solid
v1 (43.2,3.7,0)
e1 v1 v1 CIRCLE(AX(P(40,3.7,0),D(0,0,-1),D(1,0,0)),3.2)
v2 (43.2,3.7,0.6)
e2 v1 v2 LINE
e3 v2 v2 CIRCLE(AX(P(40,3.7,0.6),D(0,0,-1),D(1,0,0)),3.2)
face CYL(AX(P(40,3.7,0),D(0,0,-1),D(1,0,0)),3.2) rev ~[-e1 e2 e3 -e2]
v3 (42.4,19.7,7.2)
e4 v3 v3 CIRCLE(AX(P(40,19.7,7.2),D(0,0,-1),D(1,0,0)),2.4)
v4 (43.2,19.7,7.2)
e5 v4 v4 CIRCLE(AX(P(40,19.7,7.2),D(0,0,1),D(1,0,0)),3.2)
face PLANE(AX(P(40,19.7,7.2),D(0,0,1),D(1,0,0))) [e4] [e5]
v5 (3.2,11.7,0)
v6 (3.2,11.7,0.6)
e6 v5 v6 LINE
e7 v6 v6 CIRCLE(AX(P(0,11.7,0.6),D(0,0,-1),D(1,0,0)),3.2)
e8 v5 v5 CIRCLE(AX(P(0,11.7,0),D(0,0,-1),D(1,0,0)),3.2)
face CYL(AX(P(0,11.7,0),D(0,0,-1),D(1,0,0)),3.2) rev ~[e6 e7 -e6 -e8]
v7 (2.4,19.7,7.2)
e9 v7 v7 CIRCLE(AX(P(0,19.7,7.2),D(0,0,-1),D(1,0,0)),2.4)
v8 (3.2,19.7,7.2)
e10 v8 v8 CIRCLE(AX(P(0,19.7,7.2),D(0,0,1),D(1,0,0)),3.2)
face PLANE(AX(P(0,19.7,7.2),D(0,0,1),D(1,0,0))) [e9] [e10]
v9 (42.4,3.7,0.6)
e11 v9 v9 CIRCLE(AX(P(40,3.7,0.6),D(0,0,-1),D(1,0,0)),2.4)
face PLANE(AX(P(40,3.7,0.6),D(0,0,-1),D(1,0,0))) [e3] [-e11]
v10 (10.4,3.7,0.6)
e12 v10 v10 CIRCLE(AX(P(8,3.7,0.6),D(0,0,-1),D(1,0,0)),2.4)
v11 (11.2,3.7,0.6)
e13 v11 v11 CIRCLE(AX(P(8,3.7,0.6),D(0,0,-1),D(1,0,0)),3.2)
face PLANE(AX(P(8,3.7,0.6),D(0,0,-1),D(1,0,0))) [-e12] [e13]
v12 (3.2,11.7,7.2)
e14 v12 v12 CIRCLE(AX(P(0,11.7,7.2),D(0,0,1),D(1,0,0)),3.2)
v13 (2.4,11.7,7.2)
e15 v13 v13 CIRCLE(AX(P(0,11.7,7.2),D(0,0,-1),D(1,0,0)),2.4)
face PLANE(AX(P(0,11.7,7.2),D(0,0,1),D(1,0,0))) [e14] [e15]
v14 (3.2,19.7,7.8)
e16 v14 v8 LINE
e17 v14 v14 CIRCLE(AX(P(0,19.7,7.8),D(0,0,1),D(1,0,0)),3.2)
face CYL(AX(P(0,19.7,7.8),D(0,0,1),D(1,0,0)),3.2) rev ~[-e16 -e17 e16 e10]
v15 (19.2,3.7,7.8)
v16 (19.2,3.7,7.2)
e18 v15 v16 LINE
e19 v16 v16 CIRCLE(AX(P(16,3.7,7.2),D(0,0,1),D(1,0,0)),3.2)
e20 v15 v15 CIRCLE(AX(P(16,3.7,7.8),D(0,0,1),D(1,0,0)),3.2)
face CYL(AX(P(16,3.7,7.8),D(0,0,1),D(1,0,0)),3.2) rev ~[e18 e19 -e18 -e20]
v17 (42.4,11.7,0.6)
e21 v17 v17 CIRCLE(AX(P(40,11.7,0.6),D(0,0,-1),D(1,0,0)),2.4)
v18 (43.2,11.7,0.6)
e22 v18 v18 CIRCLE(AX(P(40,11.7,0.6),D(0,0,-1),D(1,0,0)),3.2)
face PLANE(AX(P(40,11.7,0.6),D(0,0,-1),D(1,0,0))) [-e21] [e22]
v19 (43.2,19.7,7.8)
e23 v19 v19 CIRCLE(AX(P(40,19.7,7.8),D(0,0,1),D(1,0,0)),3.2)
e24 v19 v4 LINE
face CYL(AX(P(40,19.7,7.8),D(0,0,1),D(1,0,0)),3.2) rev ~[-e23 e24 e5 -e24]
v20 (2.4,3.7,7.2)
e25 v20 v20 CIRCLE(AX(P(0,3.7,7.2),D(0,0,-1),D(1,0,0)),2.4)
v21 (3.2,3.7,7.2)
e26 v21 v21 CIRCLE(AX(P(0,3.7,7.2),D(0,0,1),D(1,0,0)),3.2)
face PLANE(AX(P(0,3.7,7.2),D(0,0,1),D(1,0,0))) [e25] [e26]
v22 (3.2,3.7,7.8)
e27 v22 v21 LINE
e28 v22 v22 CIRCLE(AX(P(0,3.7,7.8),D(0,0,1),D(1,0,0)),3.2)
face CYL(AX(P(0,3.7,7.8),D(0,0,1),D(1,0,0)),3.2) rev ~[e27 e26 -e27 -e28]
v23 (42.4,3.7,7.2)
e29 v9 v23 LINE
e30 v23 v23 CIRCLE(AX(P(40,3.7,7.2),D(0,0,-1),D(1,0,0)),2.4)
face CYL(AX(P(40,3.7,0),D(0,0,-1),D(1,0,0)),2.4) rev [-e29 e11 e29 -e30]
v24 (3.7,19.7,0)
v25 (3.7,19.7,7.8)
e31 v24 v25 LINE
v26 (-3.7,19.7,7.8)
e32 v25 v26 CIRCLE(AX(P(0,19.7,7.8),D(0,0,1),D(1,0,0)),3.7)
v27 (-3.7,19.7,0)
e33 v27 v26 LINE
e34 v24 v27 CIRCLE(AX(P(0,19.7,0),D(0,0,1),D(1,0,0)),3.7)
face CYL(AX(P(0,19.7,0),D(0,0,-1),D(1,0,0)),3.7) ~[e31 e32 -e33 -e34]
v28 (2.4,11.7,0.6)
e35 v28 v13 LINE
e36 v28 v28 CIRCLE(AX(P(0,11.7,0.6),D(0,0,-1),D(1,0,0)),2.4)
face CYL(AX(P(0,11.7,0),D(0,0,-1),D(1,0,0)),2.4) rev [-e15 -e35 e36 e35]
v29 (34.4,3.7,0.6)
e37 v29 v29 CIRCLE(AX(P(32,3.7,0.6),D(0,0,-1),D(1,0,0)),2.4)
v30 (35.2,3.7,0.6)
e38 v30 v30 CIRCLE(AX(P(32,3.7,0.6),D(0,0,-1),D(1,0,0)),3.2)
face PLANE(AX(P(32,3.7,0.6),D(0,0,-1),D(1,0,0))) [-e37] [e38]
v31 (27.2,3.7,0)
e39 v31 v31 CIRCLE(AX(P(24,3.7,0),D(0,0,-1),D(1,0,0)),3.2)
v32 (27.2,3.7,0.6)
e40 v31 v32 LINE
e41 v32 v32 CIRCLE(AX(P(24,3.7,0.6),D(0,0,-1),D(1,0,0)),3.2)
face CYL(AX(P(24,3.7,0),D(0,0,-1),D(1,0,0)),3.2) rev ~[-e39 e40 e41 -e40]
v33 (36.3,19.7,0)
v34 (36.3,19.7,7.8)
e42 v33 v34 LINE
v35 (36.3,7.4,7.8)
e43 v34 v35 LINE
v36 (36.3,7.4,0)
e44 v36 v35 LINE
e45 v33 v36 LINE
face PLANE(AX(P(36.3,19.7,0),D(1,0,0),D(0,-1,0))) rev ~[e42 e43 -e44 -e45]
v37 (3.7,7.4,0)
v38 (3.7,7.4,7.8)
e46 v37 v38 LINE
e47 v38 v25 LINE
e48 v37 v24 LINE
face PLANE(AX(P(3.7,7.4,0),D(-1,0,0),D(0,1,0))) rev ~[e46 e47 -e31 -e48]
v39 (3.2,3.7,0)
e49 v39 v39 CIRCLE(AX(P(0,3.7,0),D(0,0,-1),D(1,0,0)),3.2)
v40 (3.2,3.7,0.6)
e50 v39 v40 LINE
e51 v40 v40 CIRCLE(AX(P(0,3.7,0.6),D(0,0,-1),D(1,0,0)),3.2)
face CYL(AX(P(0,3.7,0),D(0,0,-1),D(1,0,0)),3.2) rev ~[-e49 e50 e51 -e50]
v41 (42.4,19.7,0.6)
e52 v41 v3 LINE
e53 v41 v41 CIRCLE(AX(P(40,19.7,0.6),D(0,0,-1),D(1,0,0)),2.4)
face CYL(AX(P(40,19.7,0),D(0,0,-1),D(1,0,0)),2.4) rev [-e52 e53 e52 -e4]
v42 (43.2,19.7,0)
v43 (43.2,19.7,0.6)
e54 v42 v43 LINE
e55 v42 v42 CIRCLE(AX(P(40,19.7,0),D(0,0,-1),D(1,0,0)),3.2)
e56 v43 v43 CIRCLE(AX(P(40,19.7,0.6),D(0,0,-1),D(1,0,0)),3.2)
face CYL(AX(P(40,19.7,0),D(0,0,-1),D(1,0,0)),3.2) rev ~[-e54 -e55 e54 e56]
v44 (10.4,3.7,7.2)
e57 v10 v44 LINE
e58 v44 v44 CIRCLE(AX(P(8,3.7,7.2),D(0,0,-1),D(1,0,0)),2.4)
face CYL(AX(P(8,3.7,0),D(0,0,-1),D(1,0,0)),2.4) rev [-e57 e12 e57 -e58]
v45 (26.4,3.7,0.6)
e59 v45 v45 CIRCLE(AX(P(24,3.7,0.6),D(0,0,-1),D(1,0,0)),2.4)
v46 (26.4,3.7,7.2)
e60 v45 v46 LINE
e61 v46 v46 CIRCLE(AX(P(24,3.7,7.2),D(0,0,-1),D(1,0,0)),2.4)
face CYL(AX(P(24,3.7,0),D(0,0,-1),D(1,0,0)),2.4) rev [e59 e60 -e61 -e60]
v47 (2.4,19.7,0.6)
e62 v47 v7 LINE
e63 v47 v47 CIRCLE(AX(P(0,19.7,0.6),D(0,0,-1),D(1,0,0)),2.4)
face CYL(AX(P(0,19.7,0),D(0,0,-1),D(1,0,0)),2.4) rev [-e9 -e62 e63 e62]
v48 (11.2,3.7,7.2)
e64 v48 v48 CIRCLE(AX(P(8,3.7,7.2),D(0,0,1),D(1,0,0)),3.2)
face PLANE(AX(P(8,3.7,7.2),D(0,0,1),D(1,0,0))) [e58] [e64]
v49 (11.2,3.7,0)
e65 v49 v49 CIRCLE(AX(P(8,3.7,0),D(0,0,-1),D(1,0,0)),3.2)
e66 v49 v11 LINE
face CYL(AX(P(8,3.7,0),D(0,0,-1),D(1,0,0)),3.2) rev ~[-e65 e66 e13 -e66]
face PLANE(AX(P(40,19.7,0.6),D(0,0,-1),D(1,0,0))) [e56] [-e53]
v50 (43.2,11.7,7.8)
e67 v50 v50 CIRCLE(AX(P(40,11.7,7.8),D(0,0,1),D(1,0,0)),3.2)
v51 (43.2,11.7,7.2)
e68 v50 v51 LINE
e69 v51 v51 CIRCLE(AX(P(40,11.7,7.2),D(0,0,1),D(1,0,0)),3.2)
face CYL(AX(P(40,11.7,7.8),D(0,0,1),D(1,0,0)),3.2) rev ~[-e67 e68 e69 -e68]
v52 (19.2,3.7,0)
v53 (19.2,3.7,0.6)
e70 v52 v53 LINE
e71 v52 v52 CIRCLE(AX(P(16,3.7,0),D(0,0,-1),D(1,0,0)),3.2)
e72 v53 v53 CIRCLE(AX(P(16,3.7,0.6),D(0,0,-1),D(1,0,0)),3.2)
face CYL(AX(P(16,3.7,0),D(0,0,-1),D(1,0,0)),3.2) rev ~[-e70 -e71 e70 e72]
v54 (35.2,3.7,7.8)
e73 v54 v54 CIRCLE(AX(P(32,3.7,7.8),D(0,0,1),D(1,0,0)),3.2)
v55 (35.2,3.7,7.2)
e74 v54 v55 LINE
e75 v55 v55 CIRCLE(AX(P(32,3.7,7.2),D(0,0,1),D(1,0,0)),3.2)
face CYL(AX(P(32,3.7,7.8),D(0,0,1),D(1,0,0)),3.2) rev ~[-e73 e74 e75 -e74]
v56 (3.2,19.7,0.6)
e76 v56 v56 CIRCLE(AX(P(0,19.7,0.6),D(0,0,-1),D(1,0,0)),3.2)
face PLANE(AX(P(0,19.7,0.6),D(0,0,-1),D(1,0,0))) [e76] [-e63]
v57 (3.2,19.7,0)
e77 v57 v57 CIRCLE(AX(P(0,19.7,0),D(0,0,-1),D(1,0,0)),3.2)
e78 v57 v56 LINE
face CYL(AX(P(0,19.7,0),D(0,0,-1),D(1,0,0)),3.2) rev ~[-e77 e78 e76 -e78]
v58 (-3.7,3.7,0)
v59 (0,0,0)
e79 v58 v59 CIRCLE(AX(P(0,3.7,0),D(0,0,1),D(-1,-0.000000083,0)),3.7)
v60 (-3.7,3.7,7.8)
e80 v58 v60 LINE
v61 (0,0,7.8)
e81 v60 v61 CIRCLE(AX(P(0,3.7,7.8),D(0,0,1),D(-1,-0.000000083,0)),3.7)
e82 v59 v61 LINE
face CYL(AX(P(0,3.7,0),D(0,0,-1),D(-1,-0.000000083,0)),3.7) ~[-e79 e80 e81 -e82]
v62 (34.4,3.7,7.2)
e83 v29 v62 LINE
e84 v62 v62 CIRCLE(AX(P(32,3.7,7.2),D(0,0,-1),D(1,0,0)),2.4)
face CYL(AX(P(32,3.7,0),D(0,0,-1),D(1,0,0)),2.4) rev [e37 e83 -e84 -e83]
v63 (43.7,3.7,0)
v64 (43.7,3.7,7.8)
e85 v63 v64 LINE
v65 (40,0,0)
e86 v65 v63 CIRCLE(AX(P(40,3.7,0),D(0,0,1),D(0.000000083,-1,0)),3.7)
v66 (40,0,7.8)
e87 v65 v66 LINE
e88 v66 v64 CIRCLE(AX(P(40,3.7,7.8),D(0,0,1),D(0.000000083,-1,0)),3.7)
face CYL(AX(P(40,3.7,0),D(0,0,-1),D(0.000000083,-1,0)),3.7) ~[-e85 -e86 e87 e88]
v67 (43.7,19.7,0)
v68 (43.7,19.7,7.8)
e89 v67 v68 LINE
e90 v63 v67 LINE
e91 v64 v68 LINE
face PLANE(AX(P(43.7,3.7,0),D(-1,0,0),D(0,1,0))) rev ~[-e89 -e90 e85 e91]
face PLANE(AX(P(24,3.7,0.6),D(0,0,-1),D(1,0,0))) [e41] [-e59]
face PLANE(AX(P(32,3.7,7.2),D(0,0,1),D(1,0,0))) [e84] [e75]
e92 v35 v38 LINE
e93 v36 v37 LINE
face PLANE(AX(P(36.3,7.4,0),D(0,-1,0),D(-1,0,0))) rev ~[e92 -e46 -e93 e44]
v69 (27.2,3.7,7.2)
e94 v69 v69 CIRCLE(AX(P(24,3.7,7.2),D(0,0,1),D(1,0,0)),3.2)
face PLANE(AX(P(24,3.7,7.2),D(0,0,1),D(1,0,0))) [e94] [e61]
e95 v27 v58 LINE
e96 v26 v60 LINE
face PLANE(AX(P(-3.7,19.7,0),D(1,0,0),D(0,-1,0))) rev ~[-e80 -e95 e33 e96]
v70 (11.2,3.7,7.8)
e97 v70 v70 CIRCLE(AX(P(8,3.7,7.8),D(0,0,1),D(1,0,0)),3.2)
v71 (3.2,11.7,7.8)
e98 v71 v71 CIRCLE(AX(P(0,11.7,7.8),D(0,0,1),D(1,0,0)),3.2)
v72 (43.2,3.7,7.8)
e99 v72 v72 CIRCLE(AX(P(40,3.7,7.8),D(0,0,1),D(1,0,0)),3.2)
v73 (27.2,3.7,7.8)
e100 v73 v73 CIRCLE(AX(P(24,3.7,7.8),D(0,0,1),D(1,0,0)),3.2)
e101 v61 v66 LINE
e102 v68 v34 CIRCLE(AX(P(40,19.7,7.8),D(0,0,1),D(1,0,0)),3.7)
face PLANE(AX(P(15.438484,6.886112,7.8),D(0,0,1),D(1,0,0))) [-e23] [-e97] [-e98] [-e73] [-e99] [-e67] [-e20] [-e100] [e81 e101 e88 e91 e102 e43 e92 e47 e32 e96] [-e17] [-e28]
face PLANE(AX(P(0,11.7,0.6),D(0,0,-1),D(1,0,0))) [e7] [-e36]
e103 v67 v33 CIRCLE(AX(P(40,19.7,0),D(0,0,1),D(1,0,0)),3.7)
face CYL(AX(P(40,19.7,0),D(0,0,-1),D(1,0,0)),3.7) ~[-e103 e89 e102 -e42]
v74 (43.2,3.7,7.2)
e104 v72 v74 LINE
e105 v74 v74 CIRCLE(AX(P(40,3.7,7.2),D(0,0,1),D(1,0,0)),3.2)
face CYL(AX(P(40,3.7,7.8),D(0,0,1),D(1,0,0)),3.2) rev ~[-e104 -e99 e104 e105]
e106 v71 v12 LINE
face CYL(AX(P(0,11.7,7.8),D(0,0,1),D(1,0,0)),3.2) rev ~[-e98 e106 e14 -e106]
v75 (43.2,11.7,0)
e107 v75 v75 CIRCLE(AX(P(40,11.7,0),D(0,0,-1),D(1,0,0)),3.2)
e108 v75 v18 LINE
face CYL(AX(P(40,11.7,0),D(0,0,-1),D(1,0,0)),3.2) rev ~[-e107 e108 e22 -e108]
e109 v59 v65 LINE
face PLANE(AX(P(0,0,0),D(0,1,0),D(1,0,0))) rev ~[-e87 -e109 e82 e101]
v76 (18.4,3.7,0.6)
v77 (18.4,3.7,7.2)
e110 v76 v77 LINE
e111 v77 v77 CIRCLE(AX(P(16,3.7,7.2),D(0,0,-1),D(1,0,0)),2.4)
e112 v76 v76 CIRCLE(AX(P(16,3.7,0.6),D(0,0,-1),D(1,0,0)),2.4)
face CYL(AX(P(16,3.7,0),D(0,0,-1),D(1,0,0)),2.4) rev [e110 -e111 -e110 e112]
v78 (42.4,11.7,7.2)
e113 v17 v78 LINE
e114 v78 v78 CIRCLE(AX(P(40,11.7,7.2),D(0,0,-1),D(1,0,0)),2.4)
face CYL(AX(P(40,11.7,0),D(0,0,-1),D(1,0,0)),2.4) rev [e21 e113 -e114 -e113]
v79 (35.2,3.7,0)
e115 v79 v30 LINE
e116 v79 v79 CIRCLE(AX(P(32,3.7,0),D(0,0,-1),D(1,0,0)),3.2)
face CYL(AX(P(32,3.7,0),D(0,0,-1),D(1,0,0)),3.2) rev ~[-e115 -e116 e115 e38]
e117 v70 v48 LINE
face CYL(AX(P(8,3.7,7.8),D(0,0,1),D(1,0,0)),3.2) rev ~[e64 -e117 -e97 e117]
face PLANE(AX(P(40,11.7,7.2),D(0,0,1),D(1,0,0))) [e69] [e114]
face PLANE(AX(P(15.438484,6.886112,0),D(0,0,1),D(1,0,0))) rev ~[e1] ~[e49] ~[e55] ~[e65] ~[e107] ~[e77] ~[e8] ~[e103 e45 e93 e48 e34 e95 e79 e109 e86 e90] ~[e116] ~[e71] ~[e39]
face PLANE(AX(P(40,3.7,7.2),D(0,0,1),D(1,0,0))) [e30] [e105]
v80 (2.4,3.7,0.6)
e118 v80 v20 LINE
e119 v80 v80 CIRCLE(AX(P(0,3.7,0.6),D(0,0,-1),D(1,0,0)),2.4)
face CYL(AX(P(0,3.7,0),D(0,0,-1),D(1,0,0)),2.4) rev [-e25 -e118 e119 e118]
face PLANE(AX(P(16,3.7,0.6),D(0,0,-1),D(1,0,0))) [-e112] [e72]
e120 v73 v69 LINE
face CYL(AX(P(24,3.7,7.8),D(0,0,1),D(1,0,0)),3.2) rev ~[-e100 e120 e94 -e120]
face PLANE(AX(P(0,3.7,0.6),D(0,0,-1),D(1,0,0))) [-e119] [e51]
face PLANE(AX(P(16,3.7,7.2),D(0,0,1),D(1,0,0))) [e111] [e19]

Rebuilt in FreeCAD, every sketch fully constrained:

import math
import FreeCAD as App
import Part
import Sketcher
from FreeCAD import Vector

doc = App.newDocument("Part")
body = doc.addObject("PartDesign::Body", "Body")

sketch1 = doc.addObject("Sketcher::SketchObject", "Sketch")
body.addObject(sketch1)
sketch1.AttachmentSupport = (doc.XY_Plane, [""])
sketch1.MapMode = "FlatFace"
sketch1.addGeometry([
    Part.ArcOfCircle(Part.Circle(Vector(0, 3.7, 0), Vector(0, 0, 1), 3.7), math.radians(-179.999995), math.radians(-90.000005)),
    Part.LineSegment(Vector(0, 0, 0), Vector(40, 0, 0)),
    Part.ArcOfCircle(Part.Circle(Vector(40, 3.7, 0), Vector(0, 0, 1), 3.7), math.radians(-89.999995), math.radians(-0.000005)),
    Part.LineSegment(Vector(43.7, 3.7, 0), Vector(43.7, 19.7, 0)),
    Part.ArcOfCircle(Part.Circle(Vector(40, 19.7, 0), Vector(0, 0, 1), 3.7), math.radians(0), math.radians(180)),
    Part.LineSegment(Vector(36.3, 19.7, 0), Vector(36.3, 7.4, 0)),
    Part.LineSegment(Vector(36.3, 7.4, 0), Vector(3.7, 7.4, 0)),
    Part.LineSegment(Vector(3.7, 7.4, 0), Vector(3.7, 19.7, 0)),
    Part.ArcOfCircle(Part.Circle(Vector(0, 19.7, 0), Vector(0, 0, 1), 3.7), math.radians(0), math.radians(180)),
    Part.LineSegment(Vector(-3.7, 19.7, 0), Vector(-3.7, 3.7, 0)),
    Part.Circle(Vector(0, 3.7, 0), Vector(0, 0, 1), 2.4),
    Part.Circle(Vector(8, 3.7, 0), Vector(0, 0, 1), 2.4),
    Part.Circle(Vector(16, 3.7, 0), Vector(0, 0, 1), 2.4),
    Part.Circle(Vector(0, 11.7, 0), Vector(0, 0, 1), 2.4),
    Part.Circle(Vector(24, 3.7, 0), Vector(0, 0, 1), 2.4),
    Part.Circle(Vector(32, 3.7, 0), Vector(0, 0, 1), 2.4),
    Part.Circle(Vector(40, 3.7, 0), Vector(0, 0, 1), 2.4),
    Part.Circle(Vector(40, 11.7, 0), Vector(0, 0, 1), 2.4),
    Part.Circle(Vector(0, 19.7, 0), Vector(0, 0, 1), 2.4),
    Part.Circle(Vector(40, 19.7, 0), Vector(0, 0, 1), 2.4),
], False)
sketch1.addConstraint([
    Sketcher.Constraint("Tangent", 0, 2, 1, 1),
    Sketcher.Constraint("Tangent", 1, 2, 2, 1),
    Sketcher.Constraint("Tangent", 2, 2, 3, 1),
    Sketcher.Constraint("Tangent", 3, 2, 4, 1),
    Sketcher.Constraint("Tangent", 4, 2, 5, 1),
    Sketcher.Constraint("Coincident", 5, 2, 6, 1),
    Sketcher.Constraint("Coincident", 6, 2, 7, 1),
    Sketcher.Constraint("Tangent", 7, 2, 8, 1),
    Sketcher.Constraint("Tangent", 8, 2, 9, 1),
    Sketcher.Constraint("Tangent", 9, 2, 0, 1),
    Sketcher.Constraint("Horizontal", 1),
    Sketcher.Constraint("Vertical", 3),
    Sketcher.Constraint("Vertical", 5),
    Sketcher.Constraint("Horizontal", 6),
    Sketcher.Constraint("Vertical", 7),
    Sketcher.Constraint("Vertical", 9),
    Sketcher.Constraint("Coincident", 0, 2, -1, 1),
    Sketcher.Constraint("Coincident", 10, 3, 0, 3),
    Sketcher.Constraint("Coincident", 16, 3, 2, 3),
    Sketcher.Constraint("Coincident", 18, 3, 8, 3),
    Sketcher.Constraint("Coincident", 19, 3, 4, 3),
    Sketcher.Constraint("Equal", 0, 2),
    Sketcher.Constraint("Equal", 2, 4),
    Sketcher.Constraint("Equal", 4, 8),
    Sketcher.Constraint("Equal", 10, 11),
    Sketcher.Constraint("Equal", 11, 12),
    Sketcher.Constraint("Equal", 12, 13),
    Sketcher.Constraint("Equal", 13, 14),
    Sketcher.Constraint("Equal", 14, 15),
    Sketcher.Constraint("Equal", 15, 16),
    Sketcher.Constraint("Equal", 16, 17),
    Sketcher.Constraint("Equal", 17, 18),
    Sketcher.Constraint("Equal", 18, 19),
    Sketcher.Constraint("PointOnObject", 13, 3, -2),
    Sketcher.Constraint("Horizontal", 4, 3, 8, 3),
    Sketcher.Constraint("Horizontal", 10, 3, 11, 3),
    Sketcher.Constraint("Horizontal", 11, 3, 12, 3),
    Sketcher.Constraint("Horizontal", 12, 3, 14, 3),
    Sketcher.Constraint("Horizontal", 14, 3, 15, 3),
    Sketcher.Constraint("Horizontal", 13, 3, 17, 3),
    Sketcher.Constraint("Vertical", 16, 3, 17, 3),
    Sketcher.Constraint("Diameter", 10, 4.8),
    Sketcher.Constraint("Radius", 0, 3.7),
    Sketcher.Constraint("DistanceX", 1, 1, 1, 2, 40.0),
    Sketcher.Constraint("DistanceY", 3, 1, 3, 2, 16.0),
    Sketcher.Constraint("DistanceY", 5, 2, 5, 1, 12.3),
    Sketcher.Constraint("DistanceX", -1, 1, 11, 3, 8.0),
    Sketcher.Constraint("DistanceX", -1, 1, 12, 3, 16.0),
    Sketcher.Constraint("DistanceX", -1, 1, 14, 3, 24.0),
    Sketcher.Constraint("DistanceX", -1, 1, 15, 3, 32.0),
    Sketcher.Constraint("DistanceY", 0, 3, 13, 3, 8.0),
])
pad1 = doc.addObject("PartDesign::Pad", "Pad")
body.addObject(pad1)
pad1.Profile = sketch1
pad1.Length = 7.8

sketch2 = doc.addObject("Sketcher::SketchObject", "Sketch001")
body.addObject(sketch2)
sketch2.AttachmentSupport = (doc.XY_Plane, [""])
sketch2.MapMode = "FlatFace"
sketch2.AttachmentOffset = App.Placement(Vector(0, 0, 7.8), App.Rotation())
sketch2.addGeometry([
    Part.Circle(Vector(0, 3.7, 0), Vector(0, 0, 1), 3.2),
    Part.Circle(Vector(8, 3.7, 0), Vector(0, 0, 1), 3.2),
    Part.Circle(Vector(16, 3.7, 0), Vector(0, 0, 1), 3.2),
    Part.Circle(Vector(24, 3.7, 0), Vector(0, 0, 1), 3.2),
    Part.Circle(Vector(32, 3.7, 0), Vector(0, 0, 1), 3.2),
    Part.Circle(Vector(40, 3.7, 0), Vector(0, 0, 1), 3.2),
    Part.Circle(Vector(0, 11.7, 0), Vector(0, 0, 1), 3.2),
    Part.Circle(Vector(40, 11.7, 0), Vector(0, 0, 1), 3.2),
    Part.Circle(Vector(0, 19.7, 0), Vector(0, 0, 1), 3.2),
    Part.Circle(Vector(40, 19.7, 0), Vector(0, 0, 1), 3.2),
], False)
sketch2.addConstraint([
    Sketcher.Constraint("Equal", 0, 1),
    Sketcher.Constraint("Equal", 1, 2),
    Sketcher.Constraint("Equal", 2, 3),
    Sketcher.Constraint("Equal", 3, 4),
    Sketcher.Constraint("Equal", 4, 5),
    Sketcher.Constraint("Equal", 5, 6),
    Sketcher.Constraint("Equal", 6, 7),
    Sketcher.Constraint("Equal", 7, 8),
    Sketcher.Constraint("Equal", 8, 9),
    Sketcher.Constraint("PointOnObject", 0, 3, -2),
    Sketcher.Constraint("PointOnObject", 6, 3, -2),
    Sketcher.Constraint("PointOnObject", 8, 3, -2),
    Sketcher.Constraint("Horizontal", 0, 3, 1, 3),
    Sketcher.Constraint("Horizontal", 1, 3, 2, 3),
    Sketcher.Constraint("Horizontal", 2, 3, 3, 3),
    Sketcher.Constraint("Horizontal", 3, 3, 4, 3),
    Sketcher.Constraint("Horizontal", 4, 3, 5, 3),
    Sketcher.Constraint("Horizontal", 6, 3, 7, 3),
    Sketcher.Constraint("Horizontal", 8, 3, 9, 3),
    Sketcher.Constraint("Vertical", 5, 3, 7, 3),
    Sketcher.Constraint("Vertical", 7, 3, 9, 3),
    Sketcher.Constraint("Diameter", 0, 6.4),
    Sketcher.Constraint("DistanceX", -1, 1, 1, 3, 8.0),
    Sketcher.Constraint("DistanceX", -1, 1, 2, 3, 16.0),
    Sketcher.Constraint("DistanceX", -1, 1, 3, 3, 24.0),
    Sketcher.Constraint("DistanceX", -1, 1, 4, 3, 32.0),
    Sketcher.Constraint("DistanceX", -1, 1, 5, 3, 40.0),
    Sketcher.Constraint("DistanceY", 0, 3, 6, 3, 8.0),
    Sketcher.Constraint("DistanceY", 6, 3, 8, 3, 8.0),
    Sketcher.Constraint("DistanceY", -1, 1, 0, 3, 3.7),
])
pocket1 = doc.addObject("PartDesign::Pocket", "Pocket")
body.addObject(pocket1)
pocket1.Profile = sketch2
pocket1.Length = 0.6

sketch3 = doc.addObject("Sketcher::SketchObject", "Sketch002")
body.addObject(sketch3)
sketch3.AttachmentSupport = (doc.XY_Plane, [""])
sketch3.MapMode = "FlatFace"
sketch3.addGeometry([
    Part.Circle(Vector(0, 11.7, 0), Vector(0, 0, 1), 3.2),
    Part.Circle(Vector(0, 3.7, 0), Vector(0, 0, 1), 3.2),
    Part.Circle(Vector(8, 3.7, 0), Vector(0, 0, 1), 3.2),
    Part.Circle(Vector(16, 3.7, 0), Vector(0, 0, 1), 3.2),
    Part.Circle(Vector(24, 3.7, 0), Vector(0, 0, 1), 3.2),
    Part.Circle(Vector(32, 3.7, 0), Vector(0, 0, 1), 3.2),
    Part.Circle(Vector(40, 3.7, 0), Vector(0, 0, 1), 3.2),
    Part.Circle(Vector(40, 11.7, 0), Vector(0, 0, 1), 3.2),
    Part.Circle(Vector(0, 19.7, 0), Vector(0, 0, 1), 3.2),
    Part.Circle(Vector(40, 19.7, 0), Vector(0, 0, 1), 3.2),
], False)
sketch3.addConstraint([
    Sketcher.Constraint("Equal", 0, 1),
    Sketcher.Constraint("Equal", 1, 2),
    Sketcher.Constraint("Equal", 2, 3),
    Sketcher.Constraint("Equal", 3, 4),
    Sketcher.Constraint("Equal", 4, 5),
    Sketcher.Constraint("Equal", 5, 6),
    Sketcher.Constraint("Equal", 6, 7),
    Sketcher.Constraint("Equal", 7, 8),
    Sketcher.Constraint("Equal", 8, 9),
    Sketcher.Constraint("PointOnObject", 0, 3, -2),
    Sketcher.Constraint("PointOnObject", 1, 3, -2),
    Sketcher.Constraint("PointOnObject", 8, 3, -2),
    Sketcher.Constraint("Horizontal", 1, 3, 2, 3),
    Sketcher.Constraint("Horizontal", 2, 3, 3, 3),
    Sketcher.Constraint("Horizontal", 3, 3, 4, 3),
    Sketcher.Constraint("Horizontal", 4, 3, 5, 3),
    Sketcher.Constraint("Horizontal", 5, 3, 6, 3),
    Sketcher.Constraint("Horizontal", 0, 3, 7, 3),
    Sketcher.Constraint("Horizontal", 8, 3, 9, 3),
    Sketcher.Constraint("Vertical", 6, 3, 7, 3),
    Sketcher.Constraint("Vertical", 7, 3, 9, 3),
    Sketcher.Constraint("Diameter", 0, 6.4),
    Sketcher.Constraint("DistanceX", -1, 1, 2, 3, 8.0),
    Sketcher.Constraint("DistanceX", -1, 1, 3, 3, 16.0),
    Sketcher.Constraint("DistanceX", -1, 1, 4, 3, 24.0),
    Sketcher.Constraint("DistanceX", -1, 1, 5, 3, 32.0),
    Sketcher.Constraint("DistanceX", -1, 1, 6, 3, 40.0),
    Sketcher.Constraint("DistanceY", 1, 3, 0, 3, 8.0),
    Sketcher.Constraint("DistanceY", 0, 3, 8, 3, 8.0),
    Sketcher.Constraint("DistanceY", -1, 1, 0, 3, 11.7),
])
pocket2 = doc.addObject("PartDesign::Pocket", "Pocket001")
body.addObject(pocket2)
pocket2.Profile = sketch3
pocket2.Length = 0.6
pocket2.Reversed = True

doc.recompute()
